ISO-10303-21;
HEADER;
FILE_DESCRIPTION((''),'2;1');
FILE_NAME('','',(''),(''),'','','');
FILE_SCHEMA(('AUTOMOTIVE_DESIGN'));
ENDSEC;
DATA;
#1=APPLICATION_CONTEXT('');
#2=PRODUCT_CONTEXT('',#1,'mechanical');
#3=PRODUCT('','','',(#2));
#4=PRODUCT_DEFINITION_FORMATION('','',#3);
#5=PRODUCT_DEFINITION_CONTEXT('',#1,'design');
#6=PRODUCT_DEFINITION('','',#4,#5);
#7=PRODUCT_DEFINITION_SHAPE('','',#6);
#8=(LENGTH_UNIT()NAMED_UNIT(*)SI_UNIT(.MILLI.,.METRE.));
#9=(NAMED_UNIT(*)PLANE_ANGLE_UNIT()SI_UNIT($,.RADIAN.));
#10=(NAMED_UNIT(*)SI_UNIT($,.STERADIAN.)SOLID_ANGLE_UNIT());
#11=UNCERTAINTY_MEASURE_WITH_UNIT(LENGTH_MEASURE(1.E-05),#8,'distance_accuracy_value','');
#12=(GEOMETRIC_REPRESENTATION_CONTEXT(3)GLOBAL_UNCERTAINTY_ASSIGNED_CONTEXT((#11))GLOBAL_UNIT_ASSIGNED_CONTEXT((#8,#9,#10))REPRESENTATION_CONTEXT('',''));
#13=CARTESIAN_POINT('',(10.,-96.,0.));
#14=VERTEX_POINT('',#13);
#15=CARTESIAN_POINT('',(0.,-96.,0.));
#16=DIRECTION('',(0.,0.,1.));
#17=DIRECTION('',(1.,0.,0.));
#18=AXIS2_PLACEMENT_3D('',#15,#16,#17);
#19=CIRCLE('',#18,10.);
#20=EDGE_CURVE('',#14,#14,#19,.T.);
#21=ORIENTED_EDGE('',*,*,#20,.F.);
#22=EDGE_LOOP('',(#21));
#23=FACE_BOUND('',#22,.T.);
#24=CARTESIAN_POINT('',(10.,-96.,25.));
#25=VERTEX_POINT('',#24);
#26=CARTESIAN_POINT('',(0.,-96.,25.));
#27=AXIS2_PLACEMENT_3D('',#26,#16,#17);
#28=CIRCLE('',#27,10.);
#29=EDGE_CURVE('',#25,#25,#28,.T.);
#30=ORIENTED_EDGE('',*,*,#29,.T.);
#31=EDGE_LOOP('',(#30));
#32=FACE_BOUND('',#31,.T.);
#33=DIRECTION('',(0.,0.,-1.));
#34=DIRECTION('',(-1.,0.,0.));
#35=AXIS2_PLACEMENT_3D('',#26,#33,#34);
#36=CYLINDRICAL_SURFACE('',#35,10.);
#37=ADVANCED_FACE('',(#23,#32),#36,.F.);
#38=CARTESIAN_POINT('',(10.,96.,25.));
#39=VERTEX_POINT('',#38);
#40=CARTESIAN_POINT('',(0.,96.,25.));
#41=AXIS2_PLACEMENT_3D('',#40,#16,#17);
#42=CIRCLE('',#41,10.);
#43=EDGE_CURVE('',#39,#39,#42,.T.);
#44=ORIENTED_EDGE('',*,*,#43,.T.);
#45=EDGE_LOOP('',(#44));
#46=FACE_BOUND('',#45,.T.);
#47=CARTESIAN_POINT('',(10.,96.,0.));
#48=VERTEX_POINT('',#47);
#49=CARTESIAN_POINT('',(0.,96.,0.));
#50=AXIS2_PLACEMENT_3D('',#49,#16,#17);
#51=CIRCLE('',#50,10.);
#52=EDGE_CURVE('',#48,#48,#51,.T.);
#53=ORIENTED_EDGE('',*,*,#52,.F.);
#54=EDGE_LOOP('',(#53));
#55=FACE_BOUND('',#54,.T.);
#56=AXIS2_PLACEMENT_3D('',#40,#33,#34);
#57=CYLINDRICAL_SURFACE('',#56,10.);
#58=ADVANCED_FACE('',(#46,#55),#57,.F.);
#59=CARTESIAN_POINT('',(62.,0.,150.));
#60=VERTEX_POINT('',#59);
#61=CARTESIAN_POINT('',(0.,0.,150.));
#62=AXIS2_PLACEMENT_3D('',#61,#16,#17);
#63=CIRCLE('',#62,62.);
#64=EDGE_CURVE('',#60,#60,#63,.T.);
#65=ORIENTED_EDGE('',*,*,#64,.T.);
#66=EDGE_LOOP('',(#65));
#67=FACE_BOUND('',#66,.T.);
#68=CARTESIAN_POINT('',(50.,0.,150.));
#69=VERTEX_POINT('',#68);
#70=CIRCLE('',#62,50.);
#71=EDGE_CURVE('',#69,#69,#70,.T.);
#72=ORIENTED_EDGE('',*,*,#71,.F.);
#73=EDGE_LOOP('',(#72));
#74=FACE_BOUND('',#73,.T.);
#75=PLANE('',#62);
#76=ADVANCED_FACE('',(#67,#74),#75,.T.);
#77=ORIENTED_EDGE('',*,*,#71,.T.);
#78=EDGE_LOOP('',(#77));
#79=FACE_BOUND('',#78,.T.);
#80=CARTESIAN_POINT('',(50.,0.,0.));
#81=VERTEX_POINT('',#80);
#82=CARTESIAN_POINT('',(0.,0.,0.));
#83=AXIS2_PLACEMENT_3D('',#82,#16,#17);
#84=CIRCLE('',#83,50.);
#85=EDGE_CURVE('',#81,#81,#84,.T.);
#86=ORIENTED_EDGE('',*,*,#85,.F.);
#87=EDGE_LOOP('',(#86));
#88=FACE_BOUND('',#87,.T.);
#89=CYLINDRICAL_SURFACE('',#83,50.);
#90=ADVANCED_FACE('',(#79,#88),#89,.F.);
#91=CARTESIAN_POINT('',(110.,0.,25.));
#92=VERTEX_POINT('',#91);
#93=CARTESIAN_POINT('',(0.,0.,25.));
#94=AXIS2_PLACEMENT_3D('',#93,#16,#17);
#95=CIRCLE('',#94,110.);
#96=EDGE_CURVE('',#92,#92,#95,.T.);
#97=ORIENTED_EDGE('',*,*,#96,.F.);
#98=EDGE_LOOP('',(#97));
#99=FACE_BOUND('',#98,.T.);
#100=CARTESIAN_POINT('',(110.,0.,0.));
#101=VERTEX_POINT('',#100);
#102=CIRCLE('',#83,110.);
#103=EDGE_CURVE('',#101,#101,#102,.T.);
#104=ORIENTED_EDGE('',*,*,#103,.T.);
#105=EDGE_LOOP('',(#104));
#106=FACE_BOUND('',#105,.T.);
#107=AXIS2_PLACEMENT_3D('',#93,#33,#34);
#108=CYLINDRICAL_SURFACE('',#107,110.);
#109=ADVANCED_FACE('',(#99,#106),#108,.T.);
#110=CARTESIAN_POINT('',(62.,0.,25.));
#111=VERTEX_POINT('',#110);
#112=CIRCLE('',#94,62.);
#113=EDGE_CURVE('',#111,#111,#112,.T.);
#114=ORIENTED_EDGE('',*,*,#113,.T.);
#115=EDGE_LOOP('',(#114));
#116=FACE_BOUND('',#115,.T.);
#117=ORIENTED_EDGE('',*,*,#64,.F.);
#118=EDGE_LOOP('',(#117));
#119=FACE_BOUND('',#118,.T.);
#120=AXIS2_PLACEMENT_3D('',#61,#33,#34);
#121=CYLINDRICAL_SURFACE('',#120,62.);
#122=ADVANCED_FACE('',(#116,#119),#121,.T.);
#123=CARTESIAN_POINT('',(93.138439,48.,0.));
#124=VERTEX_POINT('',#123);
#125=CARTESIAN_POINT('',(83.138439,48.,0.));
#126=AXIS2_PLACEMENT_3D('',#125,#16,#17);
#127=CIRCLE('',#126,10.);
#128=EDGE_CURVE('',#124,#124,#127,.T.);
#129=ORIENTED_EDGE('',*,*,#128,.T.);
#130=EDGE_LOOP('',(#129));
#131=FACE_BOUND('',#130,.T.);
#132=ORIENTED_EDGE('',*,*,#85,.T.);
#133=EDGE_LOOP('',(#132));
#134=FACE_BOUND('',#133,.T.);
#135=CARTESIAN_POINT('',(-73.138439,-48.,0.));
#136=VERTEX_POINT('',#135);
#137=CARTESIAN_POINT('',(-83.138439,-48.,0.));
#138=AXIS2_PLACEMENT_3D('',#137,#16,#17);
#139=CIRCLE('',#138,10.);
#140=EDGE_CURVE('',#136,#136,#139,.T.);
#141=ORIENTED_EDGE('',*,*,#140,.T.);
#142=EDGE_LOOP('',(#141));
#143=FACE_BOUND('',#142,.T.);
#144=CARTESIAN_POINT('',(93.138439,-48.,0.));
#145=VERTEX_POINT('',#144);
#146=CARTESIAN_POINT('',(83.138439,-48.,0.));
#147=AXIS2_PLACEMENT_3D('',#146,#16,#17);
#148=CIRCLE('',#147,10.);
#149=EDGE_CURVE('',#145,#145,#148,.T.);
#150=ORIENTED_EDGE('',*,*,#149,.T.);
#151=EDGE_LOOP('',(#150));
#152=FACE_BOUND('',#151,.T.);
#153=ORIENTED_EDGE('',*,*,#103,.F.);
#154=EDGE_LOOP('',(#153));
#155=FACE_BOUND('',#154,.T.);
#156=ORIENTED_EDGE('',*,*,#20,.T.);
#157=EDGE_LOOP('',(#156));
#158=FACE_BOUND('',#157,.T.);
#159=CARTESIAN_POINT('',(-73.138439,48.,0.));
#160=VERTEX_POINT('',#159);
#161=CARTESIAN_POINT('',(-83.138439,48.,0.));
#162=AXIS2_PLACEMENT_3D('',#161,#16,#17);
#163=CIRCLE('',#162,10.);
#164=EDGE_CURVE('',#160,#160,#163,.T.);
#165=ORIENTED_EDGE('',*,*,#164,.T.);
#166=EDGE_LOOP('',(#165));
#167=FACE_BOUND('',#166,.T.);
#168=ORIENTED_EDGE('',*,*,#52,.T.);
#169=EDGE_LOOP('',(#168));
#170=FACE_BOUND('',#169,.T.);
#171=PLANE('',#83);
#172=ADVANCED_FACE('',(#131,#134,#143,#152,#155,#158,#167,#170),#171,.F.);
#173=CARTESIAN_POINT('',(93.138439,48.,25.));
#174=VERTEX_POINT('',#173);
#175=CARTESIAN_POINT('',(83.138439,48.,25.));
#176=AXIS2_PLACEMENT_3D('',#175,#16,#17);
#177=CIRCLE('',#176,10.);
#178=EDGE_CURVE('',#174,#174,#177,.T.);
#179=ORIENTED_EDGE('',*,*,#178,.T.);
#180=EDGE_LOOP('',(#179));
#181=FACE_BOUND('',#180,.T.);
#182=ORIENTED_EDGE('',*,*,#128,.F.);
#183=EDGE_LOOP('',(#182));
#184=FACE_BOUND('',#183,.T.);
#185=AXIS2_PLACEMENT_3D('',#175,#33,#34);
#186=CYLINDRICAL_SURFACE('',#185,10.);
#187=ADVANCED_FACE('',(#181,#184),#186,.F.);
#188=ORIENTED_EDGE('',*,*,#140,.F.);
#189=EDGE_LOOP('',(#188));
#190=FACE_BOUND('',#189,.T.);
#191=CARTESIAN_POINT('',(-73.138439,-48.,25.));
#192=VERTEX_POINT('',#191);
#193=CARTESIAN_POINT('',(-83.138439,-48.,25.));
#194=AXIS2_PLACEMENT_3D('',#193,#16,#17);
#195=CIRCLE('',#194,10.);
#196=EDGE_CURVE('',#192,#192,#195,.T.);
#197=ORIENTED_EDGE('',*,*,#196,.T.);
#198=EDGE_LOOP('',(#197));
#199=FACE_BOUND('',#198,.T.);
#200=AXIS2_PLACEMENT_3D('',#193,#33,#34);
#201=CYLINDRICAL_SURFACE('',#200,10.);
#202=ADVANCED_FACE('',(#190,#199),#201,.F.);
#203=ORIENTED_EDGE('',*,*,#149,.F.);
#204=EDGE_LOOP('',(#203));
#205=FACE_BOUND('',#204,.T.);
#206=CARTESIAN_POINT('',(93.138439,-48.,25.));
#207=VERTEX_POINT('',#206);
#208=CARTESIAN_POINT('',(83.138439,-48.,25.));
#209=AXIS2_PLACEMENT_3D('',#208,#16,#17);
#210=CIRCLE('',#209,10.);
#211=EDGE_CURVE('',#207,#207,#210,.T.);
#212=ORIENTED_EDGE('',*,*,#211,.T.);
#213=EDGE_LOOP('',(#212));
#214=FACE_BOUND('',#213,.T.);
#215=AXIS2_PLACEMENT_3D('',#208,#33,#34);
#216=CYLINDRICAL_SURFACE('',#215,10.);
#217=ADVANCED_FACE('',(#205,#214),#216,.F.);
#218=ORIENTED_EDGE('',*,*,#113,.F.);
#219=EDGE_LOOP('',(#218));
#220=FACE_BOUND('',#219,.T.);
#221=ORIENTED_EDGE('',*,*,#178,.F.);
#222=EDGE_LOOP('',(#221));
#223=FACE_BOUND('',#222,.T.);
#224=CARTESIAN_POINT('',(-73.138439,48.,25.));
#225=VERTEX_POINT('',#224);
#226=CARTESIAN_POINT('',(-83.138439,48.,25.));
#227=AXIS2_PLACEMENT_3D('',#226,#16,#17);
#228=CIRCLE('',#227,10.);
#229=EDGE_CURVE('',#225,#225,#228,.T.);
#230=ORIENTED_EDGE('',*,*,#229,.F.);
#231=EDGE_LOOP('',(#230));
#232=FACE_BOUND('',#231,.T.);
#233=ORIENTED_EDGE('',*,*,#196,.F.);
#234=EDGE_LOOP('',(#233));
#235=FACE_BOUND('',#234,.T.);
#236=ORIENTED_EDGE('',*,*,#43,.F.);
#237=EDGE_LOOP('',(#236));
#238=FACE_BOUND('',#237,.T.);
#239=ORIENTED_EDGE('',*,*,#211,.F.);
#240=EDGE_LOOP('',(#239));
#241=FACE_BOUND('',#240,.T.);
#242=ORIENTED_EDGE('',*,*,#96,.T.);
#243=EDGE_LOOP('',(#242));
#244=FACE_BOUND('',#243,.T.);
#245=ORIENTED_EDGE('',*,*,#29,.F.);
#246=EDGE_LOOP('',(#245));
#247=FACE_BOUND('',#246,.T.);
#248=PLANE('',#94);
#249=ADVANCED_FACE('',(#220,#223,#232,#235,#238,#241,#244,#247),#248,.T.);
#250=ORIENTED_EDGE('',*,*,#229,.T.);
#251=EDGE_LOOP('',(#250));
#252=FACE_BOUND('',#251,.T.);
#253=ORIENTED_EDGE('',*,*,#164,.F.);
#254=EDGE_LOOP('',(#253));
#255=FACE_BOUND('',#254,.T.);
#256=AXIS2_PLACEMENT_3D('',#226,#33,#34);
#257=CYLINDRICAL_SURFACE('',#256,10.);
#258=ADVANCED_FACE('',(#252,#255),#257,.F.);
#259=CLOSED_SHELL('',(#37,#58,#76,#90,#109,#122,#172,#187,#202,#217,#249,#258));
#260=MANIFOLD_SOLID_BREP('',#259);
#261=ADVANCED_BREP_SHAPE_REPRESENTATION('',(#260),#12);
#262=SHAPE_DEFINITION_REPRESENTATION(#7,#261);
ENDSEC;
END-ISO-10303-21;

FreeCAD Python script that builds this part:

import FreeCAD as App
import Part
import Sketcher

V = App.Vector

doc = App.newDocument("Part")
body = doc.addObject("PartDesign::Body", "Body")

# Sketch on XY plane
sketch1 = body.newObject("Sketcher::SketchObject", "Sketch")
sketch1.AttachmentSupport = (doc.getObject("XY_Plane"), [""])
sketch1.MapMode = "FlatFace"
sketch1.addGeometry([
    Part.Circle(V(0, 0, 0), V(0, 0, 1), 110),  # 0
    Part.Circle(V(-83.138439, -48, 0), V(0, 0, 1), 10),  # 1
    Part.Circle(V(0, -96, 0), V(0, 0, 1), 10),  # 2
    Part.Circle(V(83.138439, -48, 0), V(0, 0, 1), 10),  # 3
    Part.Circle(V(-83.138439, 48, 0), V(0, 0, 1), 10),  # 4
    Part.Circle(V(83.138439, 48, 0), V(0, 0, 1), 10),  # 5
    Part.Circle(V(0, 96, 0), V(0, 0, 1), 10),  # 6
], False)
sketch1.addConstraint([
    Sketcher.Constraint("Coincident", 0, 3, -1, 1),
    Sketcher.Constraint("Equal", 1, 2),
    Sketcher.Constraint("Equal", 2, 3),
    Sketcher.Constraint("Equal", 3, 4),
    Sketcher.Constraint("Equal", 4, 5),
    Sketcher.Constraint("Equal", 5, 6),
    Sketcher.Constraint("Symmetric", 3, 3, 4, 3, -1, 1),
    Sketcher.Constraint("Symmetric", 1, 3, 5, 3, -1, 1),
    Sketcher.Constraint("Symmetric", 2, 3, 6, 3, -1, 1),
    Sketcher.Constraint("Symmetric", 1, 3, 3, 3, -2),
    Sketcher.Constraint("PointOnObject", 2, 3, -2),
    Sketcher.Constraint("Diameter", 0, 220.0),
    Sketcher.Constraint("Diameter", 1, 20.0),
    Sketcher.Constraint("DistanceY", 1, 3, -1, 1, 48.0),
    Sketcher.Constraint("DistanceY", 2, 3, -1, 1, 96.0),
    Sketcher.Constraint("DistanceX", 1, 3, -1, 1, 83.138439),
])
pad1 = body.newObject("PartDesign::Pad", "Pad")
pad1.Profile = sketch1
pad1.Length = 25

# Sketch on XY plane
sketch2 = body.newObject("Sketcher::SketchObject", "Sketch001")
sketch2.AttachmentSupport = (doc.getObject("XY_Plane"), [""])
sketch2.MapMode = "FlatFace"
sketch2.AttachmentOffset = App.Placement(V(0, 0, 25), App.Rotation())
sketch2.addGeometry(Part.Circle(V(0, 0, 0), V(0, 0, 1), 62), False)
sketch2.addConstraint([
    Sketcher.Constraint("Coincident", 0, 3, -1, 1),
    Sketcher.Constraint("Diameter", 0, 124.0),
])
pad2 = body.newObject("PartDesign::Pad", "Pad001")
pad2.Profile = sketch2
pad2.Length = 125

# Sketch on XY plane
sketch3 = body.newObject("Sketcher::SketchObject", "Sketch002")
sketch3.AttachmentSupport = (doc.getObject("XY_Plane"), [""])
sketch3.MapMode = "FlatFace"
sketch3.AttachmentOffset = App.Placement(V(0, 0, 150), App.Rotation())
sketch3.addGeometry(Part.Circle(V(0, 0, 0), V(0, 0, 1), 50), False)
sketch3.addConstraint([
    Sketcher.Constraint("Coincident", 0, 3, -1, 1),
    Sketcher.Constraint("Diameter", 0, 100.0),
])
pocket1 = body.newObject("PartDesign::Pocket", "Pocket")
pocket1.Profile = sketch3
pocket1.Type = "ThroughAll"

doc.recompute()
